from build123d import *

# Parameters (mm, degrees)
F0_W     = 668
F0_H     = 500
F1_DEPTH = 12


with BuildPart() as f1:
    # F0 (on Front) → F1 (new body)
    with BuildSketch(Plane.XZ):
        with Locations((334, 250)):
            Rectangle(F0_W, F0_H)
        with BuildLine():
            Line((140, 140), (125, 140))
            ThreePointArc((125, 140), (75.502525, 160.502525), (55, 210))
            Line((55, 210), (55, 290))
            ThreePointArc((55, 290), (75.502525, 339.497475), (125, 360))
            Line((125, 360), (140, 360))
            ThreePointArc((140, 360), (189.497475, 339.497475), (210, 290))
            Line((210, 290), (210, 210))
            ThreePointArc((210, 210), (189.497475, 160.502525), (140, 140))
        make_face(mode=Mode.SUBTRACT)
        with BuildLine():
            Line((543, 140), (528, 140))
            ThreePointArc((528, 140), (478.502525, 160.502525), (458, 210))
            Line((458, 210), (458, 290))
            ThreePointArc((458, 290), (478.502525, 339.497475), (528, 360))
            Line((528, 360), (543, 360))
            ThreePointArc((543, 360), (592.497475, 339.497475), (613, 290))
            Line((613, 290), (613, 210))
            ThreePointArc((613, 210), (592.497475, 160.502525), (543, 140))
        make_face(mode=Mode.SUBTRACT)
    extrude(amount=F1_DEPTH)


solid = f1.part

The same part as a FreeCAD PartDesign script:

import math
import FreeCAD as App
import Part
import Sketcher

V = App.Vector
Q = App.Units.Quantity

doc = App.newDocument("Part")
body = doc.addObject("PartDesign::Body", "Body")

# Sketch on XZ plane
sketch1 = body.newObject("Sketcher::SketchObject", "Sketch")
sketch1.AttachmentSupport = (doc.getObject("XZ_Plane"), [""])
sketch1.MapMode = "FlatFace"
sketch1.addGeometry([
    Part.LineSegment(V(0, 500, 0), V(0, 0, 0)),  # 0
    Part.LineSegment(V(0, 0, 0), V(668, 0, 0)),  # 1
    Part.LineSegment(V(668, 0, 0), V(668, 500, 0)),  # 2
    Part.LineSegment(V(668, 500, 0), V(0, 500, 0)),  # 3
    Part.ArcOfCircle(Part.Circle(V(140, 210, 0), V(0, 0, 1), 70), math.radians(-90), math.radians(0)),  # 4
    Part.LineSegment(V(140, 140, 0), V(125, 140, 0)),  # 5
    Part.ArcOfCircle(Part.Circle(V(125, 210, 0), V(0, 0, 1), 70), math.radians(180), math.radians(270)),  # 6
    Part.LineSegment(V(55, 210, 0), V(55, 290, 0)),  # 7
    Part.ArcOfCircle(Part.Circle(V(125, 290, 0), V(0, 0, 1), 70), math.radians(90), math.radians(180)),  # 8
    Part.LineSegment(V(125, 360, 0), V(140, 360, 0)),  # 9
    Part.ArcOfCircle(Part.Circle(V(140, 290, 0), V(0, 0, 1), 70), math.radians(0), math.radians(90)),  # 10
    Part.LineSegment(V(210, 290, 0), V(210, 210, 0)),  # 11
    Part.ArcOfCircle(Part.Circle(V(543, 210, 0), V(0, 0, 1), 70), math.radians(-90), math.radians(0)),  # 12
    Part.LineSegment(V(543, 140, 0), V(528, 140, 0)),  # 13
    Part.ArcOfCircle(Part.Circle(V(528, 210, 0), V(0, 0, 1), 70), math.radians(180), math.radians(270)),  # 14
    Part.LineSegment(V(458, 210, 0), V(458, 290, 0)),  # 15
    Part.ArcOfCircle(Part.Circle(V(528, 290, 0), V(0, 0, 1), 70), math.radians(90), math.radians(180)),  # 16
    Part.LineSegment(V(528, 360, 0), V(543, 360, 0)),  # 17
    Part.ArcOfCircle(Part.Circle(V(543, 290, 0), V(0, 0, 1), 70), math.radians(0), math.radians(90)),  # 18
    Part.LineSegment(V(613, 290, 0), V(613, 210, 0)),  # 19
], False)
sketch1.addConstraint([
    Sketcher.Constraint("Coincident", 0, 2, 1, 1),
    Sketcher.Constraint("Coincident", 1, 2, 2, 1),
    Sketcher.Constraint("Coincident", 2, 2, 3, 1),
    Sketcher.Constraint("Coincident", 3, 2, 0, 1),
    Sketcher.Constraint("Tangent", 4, 1, 5, 1),
    Sketcher.Constraint("Tangent", 5, 2, 6, 2),
    Sketcher.Constraint("Tangent", 6, 1, 7, 1),
    Sketcher.Constraint("Tangent", 7, 2, 8, 2),
    Sketcher.Constraint("Tangent", 8, 1, 9, 1),
    Sketcher.Constraint("Tangent", 9, 2, 10, 2),
    Sketcher.Constraint("Tangent", 10, 1, 11, 1),
    Sketcher.Constraint("Tangent", 11, 2, 4, 2),
    Sketcher.Constraint("Tangent", 12, 1, 13, 1),
    Sketcher.Constraint("Tangent", 13, 2, 14, 2),
    Sketcher.Constraint("Tangent", 14, 1, 15, 1),
    Sketcher.Constraint("Tangent", 15, 2, 16, 2),
    Sketcher.Constraint("Tangent", 16, 1, 17, 1),
    Sketcher.Constraint("Tangent", 17, 2, 18, 2),
    Sketcher.Constraint("Tangent", 18, 1, 19, 1),
    Sketcher.Constraint("Tangent", 19, 2, 12, 2),
    Sketcher.Constraint("Vertical", 0),
    Sketcher.Constraint("Horizontal", 1),
    Sketcher.Constraint("Vertical", 2),
    Sketcher.Constraint("Horizontal", 3),
    Sketcher.Constraint("Horizontal", 5),
    Sketcher.Constraint("Vertical", 7),
    Sketcher.Constraint("Horizontal", 9),
    Sketcher.Constraint("Vertical", 11),
    Sketcher.Constraint("Horizontal", 13),
    Sketcher.Constraint("Vertical", 15),
    Sketcher.Constraint("Horizontal", 17),
    Sketcher.Constraint("Vertical", 19),
    Sketcher.Constraint("Coincident", 0, 2, -1, 1),
    Sketcher.Constraint("Equal", 4, 6),
    Sketcher.Constraint("Equal", 6, 8),
    Sketcher.Constraint("Equal", 8, 10),
    Sketcher.Constraint("Equal", 10, 12),
    Sketcher.Constraint("Equal", 12, 14),
    Sketcher.Constraint("Equal", 14, 16),
    Sketcher.Constraint("Equal", 16, 18),
    Sketcher.Constraint("Horizontal", 6, 3, 12, 3),
    Sketcher.Constraint("Horizontal", 10, 3, 16, 3),
    Sketcher.Constraint("Equal", 9, 13),
    Sketcher.Constraint("Radius", 4, Q("69.999999 mm")),
    Sketcher.Constraint("DistanceX", 1, 1, 1, 2, Q("668 mm")),
    Sketcher.Constraint("DistanceX", 5, 2, 5, 1, Q("15 mm")),
    Sketcher.Constraint("DistanceY", 0, 2, 0, 1, Q("500 mm")),
    Sketcher.Constraint("DistanceY", 7, 1, 7, 2, Q("80 mm")),
    Sketcher.Constraint("DistanceX", -1, 1, 4, 3, Q("140.000001 mm")),
    Sketcher.Constraint("DistanceY", -1, 1, 4, 3, Q("209.999999 mm")),
    Sketcher.Constraint("DistanceX", -1, 1, 12, 3, Q("543.000001 mm")),
])
pad1 = body.newObject("PartDesign::Pad", "Pad")
pad1.Profile = sketch1
pad1.Length = 12

doc.recompute()
